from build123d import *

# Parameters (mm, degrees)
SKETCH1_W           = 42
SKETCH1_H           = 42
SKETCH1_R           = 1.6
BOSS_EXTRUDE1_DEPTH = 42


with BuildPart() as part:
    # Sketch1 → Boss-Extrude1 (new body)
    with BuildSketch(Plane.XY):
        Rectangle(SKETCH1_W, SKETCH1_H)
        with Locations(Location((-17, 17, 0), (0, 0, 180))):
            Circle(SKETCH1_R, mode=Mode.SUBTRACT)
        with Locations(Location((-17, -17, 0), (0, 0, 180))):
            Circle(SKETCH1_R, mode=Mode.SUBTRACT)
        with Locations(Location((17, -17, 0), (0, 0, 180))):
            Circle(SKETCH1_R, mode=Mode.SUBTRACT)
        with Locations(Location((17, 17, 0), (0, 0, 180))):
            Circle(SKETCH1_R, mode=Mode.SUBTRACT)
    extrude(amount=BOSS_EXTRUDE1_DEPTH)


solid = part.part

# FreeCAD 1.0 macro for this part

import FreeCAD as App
import Part
import Sketcher

V = App.Vector


def add_polygon(sketch, points):
    """Adds a closed chain of lines whose ends are joined by coincident constraints."""
    first, n = sketch.GeometryCount, len(points)
    for a, b in zip(points, points[1:] + points[:1]):
        sketch.addGeometry(Part.LineSegment(App.Vector(*a, 0), App.Vector(*b, 0)), False)
    for i in range(n):
        sketch.addConstraint(Sketcher.Constraint("Coincident", first + i, 2, first + (i + 1) % n, 1))

doc = App.newDocument("Part")
params = doc.addObject("Spreadsheet::Sheet", "Params")
for row, (alias, value) in enumerate([
    ("sketch1_diameter", "3.2 mm"),
    ("sketch1_width", "42 mm"),
    ("pad1_length", "42 mm"),
], start=1):
    params.set(f"A{row}", alias)
    params.set(f"B{row}", "=" + value)
    params.setAlias(f"B{row}", alias)

body = doc.addObject("PartDesign::Body", "Body")

sketch1 = doc.addObject("Sketcher::SketchObject", "Sketch")
body.addObject(sketch1)
sketch1.AttachmentSupport = (doc.XY_Plane, [""])
sketch1.MapMode = "FlatFace"
add_polygon(sketch1, [(-21, 21), (-21, -21), (21, -21), (21, 21)])
sketch1.addGeometry(Part.Circle(V(-17, -17, 0), V(0, 0, 1), 1.6), False)
sketch1.addGeometry(Part.Circle(V(17, -17, 0), V(0, 0, 1), 1.6), False)
sketch1.addGeometry(Part.Circle(V(-17, 17, 0), V(0, 0, 1), 1.6), False)
sketch1.addGeometry(Part.Circle(V(17, 17, 0), V(0, 0, 1), 1.6), False)
sketch1.addConstraint([
    Sketcher.Constraint("Vertical", 0),
    Sketcher.Constraint("Horizontal", 1),
    Sketcher.Constraint("Vertical", 2),
    Sketcher.Constraint("Horizontal", 3),
    Sketcher.Constraint("Equal", 4, 5),
    Sketcher.Constraint("Equal", 5, 6),
    Sketcher.Constraint("Equal", 6, 7),
    Sketcher.Constraint("Symmetric", 5, 3, 6, 3, -1, 1),
    Sketcher.Constraint("Symmetric", 4, 3, 7, 3, -1, 1),
    Sketcher.Constraint("Symmetric", 0, 2, 2, 2, -1, 1),
    Sketcher.Constraint("Symmetric", 4, 3, 5, 3, -2),
    Sketcher.Constraint("Equal", 3, 0),
    Sketcher.Constraint("Diameter", 4, 3.2),
    Sketcher.Constraint("DistanceX", 1, 1, 1, 2, 42.0),
    Sketcher.Constraint("DistanceX", 4, 3, -1, 1, 17.0),
    Sketcher.Constraint("DistanceY", 4, 3, -1, 1, 17.0),
])
sketch1.setExpression("Constraints[16]", "Params.sketch1_diameter")
sketch1.setExpression("Constraints[17]", "Params.sketch1_width")
pad1 = doc.addObject("PartDesign::Pad", "Pad")
body.addObject(pad1)
pad1.Profile = sketch1
pad1.setExpression("Length", "Params.pad1_length")

doc.recompute()
